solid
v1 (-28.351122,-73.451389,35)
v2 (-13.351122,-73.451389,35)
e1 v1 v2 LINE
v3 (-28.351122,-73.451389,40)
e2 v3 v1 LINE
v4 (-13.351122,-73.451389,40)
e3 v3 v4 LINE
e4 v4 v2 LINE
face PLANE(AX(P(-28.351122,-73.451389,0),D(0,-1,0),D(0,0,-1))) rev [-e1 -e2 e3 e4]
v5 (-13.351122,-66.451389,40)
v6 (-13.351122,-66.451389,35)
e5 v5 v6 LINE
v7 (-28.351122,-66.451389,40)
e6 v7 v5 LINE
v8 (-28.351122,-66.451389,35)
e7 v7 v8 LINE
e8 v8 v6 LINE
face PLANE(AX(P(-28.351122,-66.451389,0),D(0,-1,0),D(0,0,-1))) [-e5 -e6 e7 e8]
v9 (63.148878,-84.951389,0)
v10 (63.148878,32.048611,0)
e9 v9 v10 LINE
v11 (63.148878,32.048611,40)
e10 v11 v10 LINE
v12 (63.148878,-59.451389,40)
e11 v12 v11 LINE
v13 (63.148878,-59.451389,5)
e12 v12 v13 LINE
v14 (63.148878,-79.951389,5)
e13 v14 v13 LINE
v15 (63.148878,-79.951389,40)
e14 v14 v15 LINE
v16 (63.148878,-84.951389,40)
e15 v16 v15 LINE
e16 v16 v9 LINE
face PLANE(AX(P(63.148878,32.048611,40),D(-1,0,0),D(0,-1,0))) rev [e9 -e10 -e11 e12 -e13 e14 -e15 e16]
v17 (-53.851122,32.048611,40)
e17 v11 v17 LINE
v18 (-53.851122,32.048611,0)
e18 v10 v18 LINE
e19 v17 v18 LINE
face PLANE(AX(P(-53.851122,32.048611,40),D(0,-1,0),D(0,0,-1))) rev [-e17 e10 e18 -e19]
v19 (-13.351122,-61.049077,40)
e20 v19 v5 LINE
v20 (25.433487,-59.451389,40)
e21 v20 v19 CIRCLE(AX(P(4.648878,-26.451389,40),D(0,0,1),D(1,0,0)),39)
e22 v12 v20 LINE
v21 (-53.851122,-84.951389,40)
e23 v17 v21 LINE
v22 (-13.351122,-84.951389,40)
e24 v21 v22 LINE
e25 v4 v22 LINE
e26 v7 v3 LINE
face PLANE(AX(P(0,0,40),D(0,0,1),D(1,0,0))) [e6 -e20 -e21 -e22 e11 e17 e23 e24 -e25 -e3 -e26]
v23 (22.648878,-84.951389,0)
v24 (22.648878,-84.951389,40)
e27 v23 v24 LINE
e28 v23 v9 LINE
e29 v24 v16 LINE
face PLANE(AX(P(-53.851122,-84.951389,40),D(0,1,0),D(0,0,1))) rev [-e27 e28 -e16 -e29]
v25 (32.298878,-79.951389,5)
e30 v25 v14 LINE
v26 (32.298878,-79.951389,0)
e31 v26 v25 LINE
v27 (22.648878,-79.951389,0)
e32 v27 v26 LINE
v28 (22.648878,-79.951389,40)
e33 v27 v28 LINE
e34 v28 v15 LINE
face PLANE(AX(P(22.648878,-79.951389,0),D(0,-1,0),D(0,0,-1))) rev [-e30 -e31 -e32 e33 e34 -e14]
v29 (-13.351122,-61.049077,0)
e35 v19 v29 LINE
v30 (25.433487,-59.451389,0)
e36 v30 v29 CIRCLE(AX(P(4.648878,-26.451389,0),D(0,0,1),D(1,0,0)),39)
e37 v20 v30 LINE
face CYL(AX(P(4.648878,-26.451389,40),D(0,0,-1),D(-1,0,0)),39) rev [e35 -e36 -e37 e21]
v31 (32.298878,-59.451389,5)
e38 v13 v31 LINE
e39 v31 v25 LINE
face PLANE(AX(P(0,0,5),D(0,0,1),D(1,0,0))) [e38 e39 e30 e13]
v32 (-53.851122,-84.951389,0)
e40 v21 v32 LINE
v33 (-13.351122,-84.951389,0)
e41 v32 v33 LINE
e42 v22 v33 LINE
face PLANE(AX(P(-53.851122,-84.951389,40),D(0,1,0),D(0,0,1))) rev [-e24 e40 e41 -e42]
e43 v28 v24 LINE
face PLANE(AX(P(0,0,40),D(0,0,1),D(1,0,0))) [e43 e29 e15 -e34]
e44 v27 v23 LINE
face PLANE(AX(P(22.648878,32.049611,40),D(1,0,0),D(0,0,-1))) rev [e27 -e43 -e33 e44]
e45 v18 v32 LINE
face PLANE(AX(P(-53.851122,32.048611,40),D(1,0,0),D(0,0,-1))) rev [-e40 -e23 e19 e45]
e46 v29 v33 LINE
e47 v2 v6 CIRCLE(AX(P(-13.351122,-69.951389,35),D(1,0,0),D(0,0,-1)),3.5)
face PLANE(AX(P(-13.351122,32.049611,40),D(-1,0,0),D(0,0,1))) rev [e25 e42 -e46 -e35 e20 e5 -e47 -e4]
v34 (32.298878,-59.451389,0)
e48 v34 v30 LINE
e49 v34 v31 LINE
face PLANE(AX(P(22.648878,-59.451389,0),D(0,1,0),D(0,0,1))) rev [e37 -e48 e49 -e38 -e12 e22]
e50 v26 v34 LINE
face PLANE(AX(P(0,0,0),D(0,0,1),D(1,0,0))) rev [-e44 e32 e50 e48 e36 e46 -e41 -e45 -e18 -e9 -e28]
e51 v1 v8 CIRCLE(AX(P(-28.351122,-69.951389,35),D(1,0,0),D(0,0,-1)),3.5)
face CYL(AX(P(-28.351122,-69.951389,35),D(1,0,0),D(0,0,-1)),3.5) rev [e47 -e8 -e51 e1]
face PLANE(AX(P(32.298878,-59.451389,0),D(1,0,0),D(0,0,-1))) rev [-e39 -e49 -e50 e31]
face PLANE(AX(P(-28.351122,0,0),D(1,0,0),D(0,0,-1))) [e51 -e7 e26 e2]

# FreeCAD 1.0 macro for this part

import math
import FreeCAD as App
import Part
import Sketcher
Q = App.Units.Quantity

doc = App.newDocument("Part")
body = doc.addObject("PartDesign::Body", "Body")

# Sketch on XY plane
sketch1 = doc.addObject("Sketcher::SketchObject", "Sketch")
body.addObject(sketch1)
sketch1.AttachmentSupport = (doc.XY_Plane, [""])
sketch1.MapMode = "FlatFace"
sketch1.addGeometry(Part.LineSegment(App.Vector(-53.851122, 32.048611, 0), App.Vector(-53.851122, -84.951389, 0)), False)
sketch1.addGeometry(Part.LineSegment(App.Vector(-53.851122, -84.951389, 0), App.Vector(63.148878, -84.951389, 0)), False)
sketch1.addGeometry(Part.LineSegment(App.Vector(63.148878, -84.951389, 0), App.Vector(63.148878, 32.048611, 0)), False)
sketch1.addGeometry(Part.LineSegment(App.Vector(63.148878, 32.048611, 0), App.Vector(-53.851122, 32.048611, 0)), False)
sketch1.addGeometry(Part.Circle(App.Vector(4.648878, -26.451389, 0), App.Vector(0, 0, 1), 39), False)
sketch1.addConstraint(Sketcher.Constraint("Coincident", 0, 2, 1, 1))
sketch1.addConstraint(Sketcher.Constraint("Coincident", 1, 2, 2, 1))
sketch1.addConstraint(Sketcher.Constraint("Coincident", 2, 2, 3, 1))
sketch1.addConstraint(Sketcher.Constraint("Coincident", 3, 2, 0, 1))
sketch1.addConstraint(Sketcher.Constraint("Vertical", 0))
sketch1.addConstraint(Sketcher.Constraint("Horizontal", 1))
sketch1.addConstraint(Sketcher.Constraint("Vertical", 2))
sketch1.addConstraint(Sketcher.Constraint("Horizontal", 3))
sketch1.addConstraint(Sketcher.Constraint("Equal", 3, 0))
sketch1.addConstraint(Sketcher.Constraint("Diameter", 4, Q("78 mm")))
sketch1.addConstraint(Sketcher.Constraint("DistanceX", 1, 1, 1, 2, Q("117 mm")))
sketch1.addConstraint(Sketcher.Constraint("DistanceX", 0, 2, 4, 3, Q("58.5 mm")))
sketch1.addConstraint(Sketcher.Constraint("DistanceY", 0, 2, 4, 3, Q("58.5 mm")))
sketch1.addConstraint(Sketcher.Constraint("DistanceY", 4, 3, -1, 1, Q("26.451389 mm")))
sketch1.addConstraint(Sketcher.Constraint("DistanceX", -1, 1, 4, 3, Q("4.648878 mm")))
pad1 = doc.addObject("PartDesign::Pad", "Pad")
body.addObject(pad1)
pad1.Profile = sketch1
pad1.Length = 40

# Sketch on XZ plane
sketch2 = doc.addObject("Sketcher::SketchObject", "Sketch001")
body.addObject(sketch2)
sketch2.AttachmentSupport = (doc.XZ_Plane, [""])
sketch2.MapMode = "FlatFace"
sketch2.AttachmentOffset = App.Placement(App.Vector(0, 0, 84.951389), App.Rotation())
sketch2.addGeometry(Part.LineSegment(App.Vector(-13.351122, 40, 0), App.Vector(-13.351122, 0, 0)), False)
sketch2.addGeometry(Part.LineSegment(App.Vector(-13.351122, 0, 0), App.Vector(22.648878, 0, 0)), False)
sketch2.addGeometry(Part.LineSegment(App.Vector(22.648878, 0, 0), App.Vector(22.648878, 40, 0)), False)
sketch2.addGeometry(Part.LineSegment(App.Vector(22.648878, 40, 0), App.Vector(-13.351122, 40, 0)), False)
sketch2.addConstraint(Sketcher.Constraint("Coincident", 0, 2, 1, 1))
sketch2.addConstraint(Sketcher.Constraint("Coincident", 1, 2, 2, 1))
sketch2.addConstraint(Sketcher.Constraint("Coincident", 2, 2, 3, 1))
sketch2.addConstraint(Sketcher.Constraint("Coincident", 3, 2, 0, 1))
sketch2.addConstraint(Sketcher.Constraint("Vertical", 0))
sketch2.addConstraint(Sketcher.Constraint("Horizontal", 1))
sketch2.addConstraint(Sketcher.Constraint("Vertical", 2))
sketch2.addConstraint(Sketcher.Constraint("Horizontal", 3))
sketch2.addConstraint(Sketcher.Constraint("PointOnObject", 0, 2, -1))
sketch2.addConstraint(Sketcher.Constraint("DistanceX", 1, 1, 1, 2, Q("36 mm")))
sketch2.addConstraint(Sketcher.Constraint("DistanceY", 0, 2, 0, 1, Q("40 mm")))
sketch2.addConstraint(Sketcher.Constraint("DistanceX", 0, 2, -1, 1, Q("13.351122 mm")))
pocket1 = doc.addObject("PartDesign::Pocket", "Pocket")
body.addObject(pocket1)
pocket1.Profile = sketch2
pocket1.Length = 23.902312

# Sketch on XY plane
sketch3 = doc.addObject("Sketcher::SketchObject", "Sketch002")
body.addObject(sketch3)
sketch3.AttachmentSupport = (doc.XY_Plane, [""])
sketch3.MapMode = "FlatFace"
sketch3.AttachmentOffset = App.Placement(App.Vector(0, 0, 40), App.Rotation())
sketch3.addGeometry(Part.LineSegment(App.Vector(22.648878, -59.451389, 0), App.Vector(22.648878, -79.951389, 0)), False)
sketch3.addGeometry(Part.LineSegment(App.Vector(22.648878, -79.951389, 0), App.Vector(32.298878, -79.951389, 0)), False)
sketch3.addGeometry(Part.LineSegment(App.Vector(32.298878, -79.951389, 0), App.Vector(32.298878, -59.451389, 0)), False)
sketch3.addGeometry(Part.LineSegment(App.Vector(32.298878, -59.451389, 0), App.Vector(22.648878, -59.451389, 0)), False)
sketch3.addConstraint(Sketcher.Constraint("Coincident", 0, 2, 1, 1))
sketch3.addConstraint(Sketcher.Constraint("Coincident", 1, 2, 2, 1))
sketch3.addConstraint(Sketcher.Constraint("Coincident", 2, 2, 3, 1))
sketch3.addConstraint(Sketcher.Constraint("Coincident", 3, 2, 0, 1))
sketch3.addConstraint(Sketcher.Constraint("Vertical", 0))
sketch3.addConstraint(Sketcher.Constraint("Horizontal", 1))
sketch3.addConstraint(Sketcher.Constraint("Vertical", 2))
sketch3.addConstraint(Sketcher.Constraint("Horizontal", 3))
sketch3.addConstraint(Sketcher.Constraint("DistanceY", 0, 2, 0, 1, Q("20.5 mm")))
sketch3.addConstraint(Sketcher.Constraint("DistanceX", 1, 1, 1, 2, Q("9.65 mm")))
sketch3.addConstraint(Sketcher.Constraint("DistanceY", 0, 2, -1, 1, Q("79.951389 mm")))
sketch3.addConstraint(Sketcher.Constraint("DistanceX", -1, 1, 0, 2, Q("22.648878 mm")))
pocket2 = doc.addObject("PartDesign::Pocket", "Pocket001")
body.addObject(pocket2)
pocket2.Profile = sketch3
pocket2.Length = 40

# Sketch on YZ plane
sketch4 = doc.addObject("Sketcher::SketchObject", "Sketch003")
body.addObject(sketch4)
sketch4.AttachmentSupport = (doc.YZ_Plane, [""])
sketch4.MapMode = "FlatFace"
sketch4.AttachmentOffset = App.Placement(App.Vector(0, 0, -13.351122), App.Rotation())
sketch4.addGeometry(Part.LineSegment(App.Vector(-73.451389, 40, 0), App.Vector(-73.451389, 35, 0)), False)
sketch4.addGeometry(Part.ArcOfCircle(Part.Circle(App.Vector(-69.951389, 35, 0), App.Vector(0, 0, 1), 3.5), math.radians(-180), math.radians(-90)), False)
sketch4.addGeometry(Part.ArcOfCircle(Part.Circle(App.Vector(-69.951389, 35, 0), App.Vector(0, 0, 1), 3.5), math.radians(-90), math.radians(0)), False)
sketch4.addGeometry(Part.LineSegment(App.Vector(-66.451389, 35, 0), App.Vector(-66.451389, 40, 0)), False)
sketch4.addGeometry(Part.LineSegment(App.Vector(-66.451389, 40, 0), App.Vector(-73.451389, 40, 0)), False)
sketch4.addConstraint(Sketcher.Constraint("Tangent", 0, 2, 1, 1))
sketch4.addConstraint(Sketcher.Constraint("Tangent", 1, 2, 2, 1))
sketch4.addConstraint(Sketcher.Constraint("Tangent", 2, 2, 3, 1))
sketch4.addConstraint(Sketcher.Constraint("Coincident", 3, 2, 4, 1))
sketch4.addConstraint(Sketcher.Constraint("Coincident", 4, 2, 0, 1))
sketch4.addConstraint(Sketcher.Constraint("Vertical", 0))
sketch4.addConstraint(Sketcher.Constraint("Vertical", 3))
sketch4.addConstraint(Sketcher.Constraint("Horizontal", 4))
sketch4.addConstraint(Sketcher.Constraint("Equal", 1, 2))
sketch4.addConstraint(Sketcher.Constraint("Vertical", 2, 3, 1, 2))
sketch4.addConstraint(Sketcher.Constraint("Radius", 1, Q("3.5 mm")))
sketch4.addConstraint(Sketcher.Constraint("DistanceY", 0, 2, 0, 1, Q("5 mm")))
sketch4.addConstraint(Sketcher.Constraint("DistanceY", -1, 1, 1, 3, Q("35 mm")))
sketch4.addConstraint(Sketcher.Constraint("DistanceX", 1, 3, -1, 1, Q("69.951389 mm")))
pocket3 = doc.addObject("PartDesign::Pocket", "Pocket002")
body.addObject(pocket3)
pocket3.Profile = sketch4
pocket3.Length = 15

# Sketch on XY plane
sketch5 = doc.addObject("Sketcher::SketchObject", "Sketch004")
body.addObject(sketch5)
sketch5.AttachmentSupport = (doc.XY_Plane, [""])
sketch5.MapMode = "FlatFace"
sketch5.AttachmentOffset = App.Placement(App.Vector(0, 0, 40), App.Rotation())
sketch5.addGeometry(Part.LineSegment(App.Vector(32.298878, -59.451389, 0), App.Vector(32.298878, -79.951389, 0)), False)
sketch5.addGeometry(Part.LineSegment(App.Vector(32.298878, -79.951389, 0), App.Vector(63.298878, -79.951389, 0)), False)
sketch5.addGeometry(Part.LineSegment(App.Vector(63.298878, -79.951389, 0), App.Vector(63.298878, -59.451389, 0)), False)
sketch5.addGeometry(Part.LineSegment(App.Vector(63.298878, -59.451389, 0), App.Vector(32.298878, -59.451389, 0)), False)
sketch5.addConstraint(Sketcher.Constraint("Coincident", 0, 2, 1, 1))
sketch5.addConstraint(Sketcher.Constraint("Coincident", 1, 2, 2, 1))
sketch5.addConstraint(Sketcher.Constraint("Coincident", 2, 2, 3, 1))
sketch5.addConstraint(Sketcher.Constraint("Coincident", 3, 2, 0, 1))
sketch5.addConstraint(Sketcher.Constraint("Vertical", 0))
sketch5.addConstraint(Sketcher.Constraint("Horizontal", 1))
sketch5.addConstraint(Sketcher.Constraint("Vertical", 2))
sketch5.addConstraint(Sketcher.Constraint("Horizontal", 3))
sketch5.addConstraint(Sketcher.Constraint("DistanceX", 1, 1, 1, 2, Q("31 mm")))
sketch5.addConstraint(Sketcher.Constraint("DistanceY", 0, 2, 0, 1, Q("20.5 mm")))
sketch5.addConstraint(Sketcher.Constraint("DistanceY", 0, 2, -1, 1, Q("79.951389 mm")))
sketch5.addConstraint(Sketcher.Constraint("DistanceX", -1, 1, 0, 2, Q("32.298878 mm")))
pocket4 = doc.addObject("PartDesign::Pocket", "Pocket003")
body.addObject(pocket4)
pocket4.Profile = sketch5
pocket4.Length = 35

doc.recompute()
